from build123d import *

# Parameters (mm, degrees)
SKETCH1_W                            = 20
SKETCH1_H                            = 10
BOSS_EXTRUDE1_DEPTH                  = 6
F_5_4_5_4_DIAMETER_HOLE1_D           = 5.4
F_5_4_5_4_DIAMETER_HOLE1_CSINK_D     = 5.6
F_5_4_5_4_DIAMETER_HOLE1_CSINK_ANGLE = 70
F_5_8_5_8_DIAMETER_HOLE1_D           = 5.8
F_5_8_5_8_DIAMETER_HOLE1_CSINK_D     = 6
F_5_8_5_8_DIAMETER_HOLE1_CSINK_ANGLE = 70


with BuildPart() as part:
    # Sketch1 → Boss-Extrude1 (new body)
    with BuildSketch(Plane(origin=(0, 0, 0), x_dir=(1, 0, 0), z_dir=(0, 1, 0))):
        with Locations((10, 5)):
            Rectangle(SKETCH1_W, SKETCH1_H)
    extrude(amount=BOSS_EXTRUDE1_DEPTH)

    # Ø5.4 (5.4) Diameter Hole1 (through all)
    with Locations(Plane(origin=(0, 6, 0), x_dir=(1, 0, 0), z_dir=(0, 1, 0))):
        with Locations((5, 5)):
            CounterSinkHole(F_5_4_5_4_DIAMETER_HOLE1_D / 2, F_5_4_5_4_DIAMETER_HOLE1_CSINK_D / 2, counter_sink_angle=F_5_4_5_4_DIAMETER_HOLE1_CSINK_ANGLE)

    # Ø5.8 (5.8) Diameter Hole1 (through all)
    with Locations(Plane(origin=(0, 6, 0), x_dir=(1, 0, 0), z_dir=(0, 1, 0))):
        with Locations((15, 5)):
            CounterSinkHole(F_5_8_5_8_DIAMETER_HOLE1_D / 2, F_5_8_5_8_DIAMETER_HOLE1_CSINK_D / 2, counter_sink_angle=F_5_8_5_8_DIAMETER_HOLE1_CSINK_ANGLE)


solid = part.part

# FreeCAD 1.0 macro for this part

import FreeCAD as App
import Part
import Sketcher

V = App.Vector


def add_polygon(sketch, points):
    """Adds a closed chain of lines whose ends are joined by coincident constraints."""
    first, n = sketch.GeometryCount, len(points)
    for a, b in zip(points, points[1:] + points[:1]):
        sketch.addGeometry(Part.LineSegment(App.Vector(*a, 0), App.Vector(*b, 0)), False)
    for i in range(n):
        sketch.addConstraint(Sketcher.Constraint("Coincident", first + i, 2, first + (i + 1) % n, 1))

doc = App.newDocument("Part")
body = doc.addObject("PartDesign::Body", "Body")

sketch1 = body.newObject("Sketcher::SketchObject", "Sketch")
sketch1.AttachmentSupport = (doc.getObject("XZ_Plane"), [""])
sketch1.MapMode = "FlatFace"
add_polygon(sketch1, [(0, -10), (0, 0), (20, 0), (20, -10)])
sketch1.addConstraint(Sketcher.Constraint("Vertical", 0))
sketch1.addConstraint(Sketcher.Constraint("Horizontal", 1))
sketch1.addConstraint(Sketcher.Constraint("Vertical", 2))
sketch1.addConstraint(Sketcher.Constraint("Horizontal", 3))
sketch1.addConstraint(Sketcher.Constraint("Coincident", 0, 2, -1, 1))
sketch1.addConstraint(Sketcher.Constraint("DistanceX", 1, 1, 1, 2, 20.0))
sketch1.addConstraint(Sketcher.Constraint("DistanceY", 0, 1, 0, 2, 10.0))
pad1 = body.newObject("PartDesign::Pad", "Pad")
pad1.Profile = sketch1
pad1.Length = 6
pad1.Reversed = True

sketch2 = body.newObject("Sketcher::SketchObject", "Sketch001")
sketch2.AttachmentSupport = (doc.getObject("XZ_Plane"), [""])
sketch2.MapMode = "FlatFace"
sketch2.AttachmentOffset = App.Placement(V(0, 0, -6), App.Rotation())
sketch2.addGeometry(Part.Circle(V(5, -5, 0), V(0, 0, 1), 2.7), False)
sketch2.addConstraint(Sketcher.Constraint("Diameter", 0, 5.4))
sketch2.addConstraint(Sketcher.Constraint("DistanceX", -1, 1, 0, 3, 5.0))
sketch2.addConstraint(Sketcher.Constraint("DistanceY", 0, 3, -1, 1, 5.0))
doc.recompute()
hole = body.newObject("PartDesign::Hole", "Hole")
hole.Profile = sketch2
hole.ThreadType = "None"
hole.Diameter = 5.4
hole.DepthType = "ThroughAll"
hole.HoleCutType = "Countersink"
hole.HoleCutDiameter = 5.6
hole.HoleCutCountersinkAngle = 70
hole.Reversed = True

sketch3 = body.newObject("Sketcher::SketchObject", "Sketch002")
sketch3.AttachmentSupport = (doc.getObject("XZ_Plane"), [""])
sketch3.MapMode = "FlatFace"
sketch3.AttachmentOffset = App.Placement(V(0, 0, -6), App.Rotation())
sketch3.addGeometry(Part.Circle(V(15, -5, 0), V(0, 0, 1), 2.9), False)
sketch3.addConstraint(Sketcher.Constraint("Diameter", 0, 5.8))
sketch3.addConstraint(Sketcher.Constraint("DistanceX", -1, 1, 0, 3, 15.0))
sketch3.addConstraint(Sketcher.Constraint("DistanceY", 0, 3, -1, 1, 5.0))
doc.recompute()
hole2 = body.newObject("PartDesign::Hole", "Hole001")
hole2.Profile = sketch3
hole2.ThreadType = "None"
hole2.Diameter = 5.8
hole2.DepthType = "ThroughAll"
hole2.HoleCutType = "Countersink"
hole2.HoleCutDiameter = 6
hole2.HoleCutCountersinkAngle = 70
hole2.Reversed = True

doc.recompute()
